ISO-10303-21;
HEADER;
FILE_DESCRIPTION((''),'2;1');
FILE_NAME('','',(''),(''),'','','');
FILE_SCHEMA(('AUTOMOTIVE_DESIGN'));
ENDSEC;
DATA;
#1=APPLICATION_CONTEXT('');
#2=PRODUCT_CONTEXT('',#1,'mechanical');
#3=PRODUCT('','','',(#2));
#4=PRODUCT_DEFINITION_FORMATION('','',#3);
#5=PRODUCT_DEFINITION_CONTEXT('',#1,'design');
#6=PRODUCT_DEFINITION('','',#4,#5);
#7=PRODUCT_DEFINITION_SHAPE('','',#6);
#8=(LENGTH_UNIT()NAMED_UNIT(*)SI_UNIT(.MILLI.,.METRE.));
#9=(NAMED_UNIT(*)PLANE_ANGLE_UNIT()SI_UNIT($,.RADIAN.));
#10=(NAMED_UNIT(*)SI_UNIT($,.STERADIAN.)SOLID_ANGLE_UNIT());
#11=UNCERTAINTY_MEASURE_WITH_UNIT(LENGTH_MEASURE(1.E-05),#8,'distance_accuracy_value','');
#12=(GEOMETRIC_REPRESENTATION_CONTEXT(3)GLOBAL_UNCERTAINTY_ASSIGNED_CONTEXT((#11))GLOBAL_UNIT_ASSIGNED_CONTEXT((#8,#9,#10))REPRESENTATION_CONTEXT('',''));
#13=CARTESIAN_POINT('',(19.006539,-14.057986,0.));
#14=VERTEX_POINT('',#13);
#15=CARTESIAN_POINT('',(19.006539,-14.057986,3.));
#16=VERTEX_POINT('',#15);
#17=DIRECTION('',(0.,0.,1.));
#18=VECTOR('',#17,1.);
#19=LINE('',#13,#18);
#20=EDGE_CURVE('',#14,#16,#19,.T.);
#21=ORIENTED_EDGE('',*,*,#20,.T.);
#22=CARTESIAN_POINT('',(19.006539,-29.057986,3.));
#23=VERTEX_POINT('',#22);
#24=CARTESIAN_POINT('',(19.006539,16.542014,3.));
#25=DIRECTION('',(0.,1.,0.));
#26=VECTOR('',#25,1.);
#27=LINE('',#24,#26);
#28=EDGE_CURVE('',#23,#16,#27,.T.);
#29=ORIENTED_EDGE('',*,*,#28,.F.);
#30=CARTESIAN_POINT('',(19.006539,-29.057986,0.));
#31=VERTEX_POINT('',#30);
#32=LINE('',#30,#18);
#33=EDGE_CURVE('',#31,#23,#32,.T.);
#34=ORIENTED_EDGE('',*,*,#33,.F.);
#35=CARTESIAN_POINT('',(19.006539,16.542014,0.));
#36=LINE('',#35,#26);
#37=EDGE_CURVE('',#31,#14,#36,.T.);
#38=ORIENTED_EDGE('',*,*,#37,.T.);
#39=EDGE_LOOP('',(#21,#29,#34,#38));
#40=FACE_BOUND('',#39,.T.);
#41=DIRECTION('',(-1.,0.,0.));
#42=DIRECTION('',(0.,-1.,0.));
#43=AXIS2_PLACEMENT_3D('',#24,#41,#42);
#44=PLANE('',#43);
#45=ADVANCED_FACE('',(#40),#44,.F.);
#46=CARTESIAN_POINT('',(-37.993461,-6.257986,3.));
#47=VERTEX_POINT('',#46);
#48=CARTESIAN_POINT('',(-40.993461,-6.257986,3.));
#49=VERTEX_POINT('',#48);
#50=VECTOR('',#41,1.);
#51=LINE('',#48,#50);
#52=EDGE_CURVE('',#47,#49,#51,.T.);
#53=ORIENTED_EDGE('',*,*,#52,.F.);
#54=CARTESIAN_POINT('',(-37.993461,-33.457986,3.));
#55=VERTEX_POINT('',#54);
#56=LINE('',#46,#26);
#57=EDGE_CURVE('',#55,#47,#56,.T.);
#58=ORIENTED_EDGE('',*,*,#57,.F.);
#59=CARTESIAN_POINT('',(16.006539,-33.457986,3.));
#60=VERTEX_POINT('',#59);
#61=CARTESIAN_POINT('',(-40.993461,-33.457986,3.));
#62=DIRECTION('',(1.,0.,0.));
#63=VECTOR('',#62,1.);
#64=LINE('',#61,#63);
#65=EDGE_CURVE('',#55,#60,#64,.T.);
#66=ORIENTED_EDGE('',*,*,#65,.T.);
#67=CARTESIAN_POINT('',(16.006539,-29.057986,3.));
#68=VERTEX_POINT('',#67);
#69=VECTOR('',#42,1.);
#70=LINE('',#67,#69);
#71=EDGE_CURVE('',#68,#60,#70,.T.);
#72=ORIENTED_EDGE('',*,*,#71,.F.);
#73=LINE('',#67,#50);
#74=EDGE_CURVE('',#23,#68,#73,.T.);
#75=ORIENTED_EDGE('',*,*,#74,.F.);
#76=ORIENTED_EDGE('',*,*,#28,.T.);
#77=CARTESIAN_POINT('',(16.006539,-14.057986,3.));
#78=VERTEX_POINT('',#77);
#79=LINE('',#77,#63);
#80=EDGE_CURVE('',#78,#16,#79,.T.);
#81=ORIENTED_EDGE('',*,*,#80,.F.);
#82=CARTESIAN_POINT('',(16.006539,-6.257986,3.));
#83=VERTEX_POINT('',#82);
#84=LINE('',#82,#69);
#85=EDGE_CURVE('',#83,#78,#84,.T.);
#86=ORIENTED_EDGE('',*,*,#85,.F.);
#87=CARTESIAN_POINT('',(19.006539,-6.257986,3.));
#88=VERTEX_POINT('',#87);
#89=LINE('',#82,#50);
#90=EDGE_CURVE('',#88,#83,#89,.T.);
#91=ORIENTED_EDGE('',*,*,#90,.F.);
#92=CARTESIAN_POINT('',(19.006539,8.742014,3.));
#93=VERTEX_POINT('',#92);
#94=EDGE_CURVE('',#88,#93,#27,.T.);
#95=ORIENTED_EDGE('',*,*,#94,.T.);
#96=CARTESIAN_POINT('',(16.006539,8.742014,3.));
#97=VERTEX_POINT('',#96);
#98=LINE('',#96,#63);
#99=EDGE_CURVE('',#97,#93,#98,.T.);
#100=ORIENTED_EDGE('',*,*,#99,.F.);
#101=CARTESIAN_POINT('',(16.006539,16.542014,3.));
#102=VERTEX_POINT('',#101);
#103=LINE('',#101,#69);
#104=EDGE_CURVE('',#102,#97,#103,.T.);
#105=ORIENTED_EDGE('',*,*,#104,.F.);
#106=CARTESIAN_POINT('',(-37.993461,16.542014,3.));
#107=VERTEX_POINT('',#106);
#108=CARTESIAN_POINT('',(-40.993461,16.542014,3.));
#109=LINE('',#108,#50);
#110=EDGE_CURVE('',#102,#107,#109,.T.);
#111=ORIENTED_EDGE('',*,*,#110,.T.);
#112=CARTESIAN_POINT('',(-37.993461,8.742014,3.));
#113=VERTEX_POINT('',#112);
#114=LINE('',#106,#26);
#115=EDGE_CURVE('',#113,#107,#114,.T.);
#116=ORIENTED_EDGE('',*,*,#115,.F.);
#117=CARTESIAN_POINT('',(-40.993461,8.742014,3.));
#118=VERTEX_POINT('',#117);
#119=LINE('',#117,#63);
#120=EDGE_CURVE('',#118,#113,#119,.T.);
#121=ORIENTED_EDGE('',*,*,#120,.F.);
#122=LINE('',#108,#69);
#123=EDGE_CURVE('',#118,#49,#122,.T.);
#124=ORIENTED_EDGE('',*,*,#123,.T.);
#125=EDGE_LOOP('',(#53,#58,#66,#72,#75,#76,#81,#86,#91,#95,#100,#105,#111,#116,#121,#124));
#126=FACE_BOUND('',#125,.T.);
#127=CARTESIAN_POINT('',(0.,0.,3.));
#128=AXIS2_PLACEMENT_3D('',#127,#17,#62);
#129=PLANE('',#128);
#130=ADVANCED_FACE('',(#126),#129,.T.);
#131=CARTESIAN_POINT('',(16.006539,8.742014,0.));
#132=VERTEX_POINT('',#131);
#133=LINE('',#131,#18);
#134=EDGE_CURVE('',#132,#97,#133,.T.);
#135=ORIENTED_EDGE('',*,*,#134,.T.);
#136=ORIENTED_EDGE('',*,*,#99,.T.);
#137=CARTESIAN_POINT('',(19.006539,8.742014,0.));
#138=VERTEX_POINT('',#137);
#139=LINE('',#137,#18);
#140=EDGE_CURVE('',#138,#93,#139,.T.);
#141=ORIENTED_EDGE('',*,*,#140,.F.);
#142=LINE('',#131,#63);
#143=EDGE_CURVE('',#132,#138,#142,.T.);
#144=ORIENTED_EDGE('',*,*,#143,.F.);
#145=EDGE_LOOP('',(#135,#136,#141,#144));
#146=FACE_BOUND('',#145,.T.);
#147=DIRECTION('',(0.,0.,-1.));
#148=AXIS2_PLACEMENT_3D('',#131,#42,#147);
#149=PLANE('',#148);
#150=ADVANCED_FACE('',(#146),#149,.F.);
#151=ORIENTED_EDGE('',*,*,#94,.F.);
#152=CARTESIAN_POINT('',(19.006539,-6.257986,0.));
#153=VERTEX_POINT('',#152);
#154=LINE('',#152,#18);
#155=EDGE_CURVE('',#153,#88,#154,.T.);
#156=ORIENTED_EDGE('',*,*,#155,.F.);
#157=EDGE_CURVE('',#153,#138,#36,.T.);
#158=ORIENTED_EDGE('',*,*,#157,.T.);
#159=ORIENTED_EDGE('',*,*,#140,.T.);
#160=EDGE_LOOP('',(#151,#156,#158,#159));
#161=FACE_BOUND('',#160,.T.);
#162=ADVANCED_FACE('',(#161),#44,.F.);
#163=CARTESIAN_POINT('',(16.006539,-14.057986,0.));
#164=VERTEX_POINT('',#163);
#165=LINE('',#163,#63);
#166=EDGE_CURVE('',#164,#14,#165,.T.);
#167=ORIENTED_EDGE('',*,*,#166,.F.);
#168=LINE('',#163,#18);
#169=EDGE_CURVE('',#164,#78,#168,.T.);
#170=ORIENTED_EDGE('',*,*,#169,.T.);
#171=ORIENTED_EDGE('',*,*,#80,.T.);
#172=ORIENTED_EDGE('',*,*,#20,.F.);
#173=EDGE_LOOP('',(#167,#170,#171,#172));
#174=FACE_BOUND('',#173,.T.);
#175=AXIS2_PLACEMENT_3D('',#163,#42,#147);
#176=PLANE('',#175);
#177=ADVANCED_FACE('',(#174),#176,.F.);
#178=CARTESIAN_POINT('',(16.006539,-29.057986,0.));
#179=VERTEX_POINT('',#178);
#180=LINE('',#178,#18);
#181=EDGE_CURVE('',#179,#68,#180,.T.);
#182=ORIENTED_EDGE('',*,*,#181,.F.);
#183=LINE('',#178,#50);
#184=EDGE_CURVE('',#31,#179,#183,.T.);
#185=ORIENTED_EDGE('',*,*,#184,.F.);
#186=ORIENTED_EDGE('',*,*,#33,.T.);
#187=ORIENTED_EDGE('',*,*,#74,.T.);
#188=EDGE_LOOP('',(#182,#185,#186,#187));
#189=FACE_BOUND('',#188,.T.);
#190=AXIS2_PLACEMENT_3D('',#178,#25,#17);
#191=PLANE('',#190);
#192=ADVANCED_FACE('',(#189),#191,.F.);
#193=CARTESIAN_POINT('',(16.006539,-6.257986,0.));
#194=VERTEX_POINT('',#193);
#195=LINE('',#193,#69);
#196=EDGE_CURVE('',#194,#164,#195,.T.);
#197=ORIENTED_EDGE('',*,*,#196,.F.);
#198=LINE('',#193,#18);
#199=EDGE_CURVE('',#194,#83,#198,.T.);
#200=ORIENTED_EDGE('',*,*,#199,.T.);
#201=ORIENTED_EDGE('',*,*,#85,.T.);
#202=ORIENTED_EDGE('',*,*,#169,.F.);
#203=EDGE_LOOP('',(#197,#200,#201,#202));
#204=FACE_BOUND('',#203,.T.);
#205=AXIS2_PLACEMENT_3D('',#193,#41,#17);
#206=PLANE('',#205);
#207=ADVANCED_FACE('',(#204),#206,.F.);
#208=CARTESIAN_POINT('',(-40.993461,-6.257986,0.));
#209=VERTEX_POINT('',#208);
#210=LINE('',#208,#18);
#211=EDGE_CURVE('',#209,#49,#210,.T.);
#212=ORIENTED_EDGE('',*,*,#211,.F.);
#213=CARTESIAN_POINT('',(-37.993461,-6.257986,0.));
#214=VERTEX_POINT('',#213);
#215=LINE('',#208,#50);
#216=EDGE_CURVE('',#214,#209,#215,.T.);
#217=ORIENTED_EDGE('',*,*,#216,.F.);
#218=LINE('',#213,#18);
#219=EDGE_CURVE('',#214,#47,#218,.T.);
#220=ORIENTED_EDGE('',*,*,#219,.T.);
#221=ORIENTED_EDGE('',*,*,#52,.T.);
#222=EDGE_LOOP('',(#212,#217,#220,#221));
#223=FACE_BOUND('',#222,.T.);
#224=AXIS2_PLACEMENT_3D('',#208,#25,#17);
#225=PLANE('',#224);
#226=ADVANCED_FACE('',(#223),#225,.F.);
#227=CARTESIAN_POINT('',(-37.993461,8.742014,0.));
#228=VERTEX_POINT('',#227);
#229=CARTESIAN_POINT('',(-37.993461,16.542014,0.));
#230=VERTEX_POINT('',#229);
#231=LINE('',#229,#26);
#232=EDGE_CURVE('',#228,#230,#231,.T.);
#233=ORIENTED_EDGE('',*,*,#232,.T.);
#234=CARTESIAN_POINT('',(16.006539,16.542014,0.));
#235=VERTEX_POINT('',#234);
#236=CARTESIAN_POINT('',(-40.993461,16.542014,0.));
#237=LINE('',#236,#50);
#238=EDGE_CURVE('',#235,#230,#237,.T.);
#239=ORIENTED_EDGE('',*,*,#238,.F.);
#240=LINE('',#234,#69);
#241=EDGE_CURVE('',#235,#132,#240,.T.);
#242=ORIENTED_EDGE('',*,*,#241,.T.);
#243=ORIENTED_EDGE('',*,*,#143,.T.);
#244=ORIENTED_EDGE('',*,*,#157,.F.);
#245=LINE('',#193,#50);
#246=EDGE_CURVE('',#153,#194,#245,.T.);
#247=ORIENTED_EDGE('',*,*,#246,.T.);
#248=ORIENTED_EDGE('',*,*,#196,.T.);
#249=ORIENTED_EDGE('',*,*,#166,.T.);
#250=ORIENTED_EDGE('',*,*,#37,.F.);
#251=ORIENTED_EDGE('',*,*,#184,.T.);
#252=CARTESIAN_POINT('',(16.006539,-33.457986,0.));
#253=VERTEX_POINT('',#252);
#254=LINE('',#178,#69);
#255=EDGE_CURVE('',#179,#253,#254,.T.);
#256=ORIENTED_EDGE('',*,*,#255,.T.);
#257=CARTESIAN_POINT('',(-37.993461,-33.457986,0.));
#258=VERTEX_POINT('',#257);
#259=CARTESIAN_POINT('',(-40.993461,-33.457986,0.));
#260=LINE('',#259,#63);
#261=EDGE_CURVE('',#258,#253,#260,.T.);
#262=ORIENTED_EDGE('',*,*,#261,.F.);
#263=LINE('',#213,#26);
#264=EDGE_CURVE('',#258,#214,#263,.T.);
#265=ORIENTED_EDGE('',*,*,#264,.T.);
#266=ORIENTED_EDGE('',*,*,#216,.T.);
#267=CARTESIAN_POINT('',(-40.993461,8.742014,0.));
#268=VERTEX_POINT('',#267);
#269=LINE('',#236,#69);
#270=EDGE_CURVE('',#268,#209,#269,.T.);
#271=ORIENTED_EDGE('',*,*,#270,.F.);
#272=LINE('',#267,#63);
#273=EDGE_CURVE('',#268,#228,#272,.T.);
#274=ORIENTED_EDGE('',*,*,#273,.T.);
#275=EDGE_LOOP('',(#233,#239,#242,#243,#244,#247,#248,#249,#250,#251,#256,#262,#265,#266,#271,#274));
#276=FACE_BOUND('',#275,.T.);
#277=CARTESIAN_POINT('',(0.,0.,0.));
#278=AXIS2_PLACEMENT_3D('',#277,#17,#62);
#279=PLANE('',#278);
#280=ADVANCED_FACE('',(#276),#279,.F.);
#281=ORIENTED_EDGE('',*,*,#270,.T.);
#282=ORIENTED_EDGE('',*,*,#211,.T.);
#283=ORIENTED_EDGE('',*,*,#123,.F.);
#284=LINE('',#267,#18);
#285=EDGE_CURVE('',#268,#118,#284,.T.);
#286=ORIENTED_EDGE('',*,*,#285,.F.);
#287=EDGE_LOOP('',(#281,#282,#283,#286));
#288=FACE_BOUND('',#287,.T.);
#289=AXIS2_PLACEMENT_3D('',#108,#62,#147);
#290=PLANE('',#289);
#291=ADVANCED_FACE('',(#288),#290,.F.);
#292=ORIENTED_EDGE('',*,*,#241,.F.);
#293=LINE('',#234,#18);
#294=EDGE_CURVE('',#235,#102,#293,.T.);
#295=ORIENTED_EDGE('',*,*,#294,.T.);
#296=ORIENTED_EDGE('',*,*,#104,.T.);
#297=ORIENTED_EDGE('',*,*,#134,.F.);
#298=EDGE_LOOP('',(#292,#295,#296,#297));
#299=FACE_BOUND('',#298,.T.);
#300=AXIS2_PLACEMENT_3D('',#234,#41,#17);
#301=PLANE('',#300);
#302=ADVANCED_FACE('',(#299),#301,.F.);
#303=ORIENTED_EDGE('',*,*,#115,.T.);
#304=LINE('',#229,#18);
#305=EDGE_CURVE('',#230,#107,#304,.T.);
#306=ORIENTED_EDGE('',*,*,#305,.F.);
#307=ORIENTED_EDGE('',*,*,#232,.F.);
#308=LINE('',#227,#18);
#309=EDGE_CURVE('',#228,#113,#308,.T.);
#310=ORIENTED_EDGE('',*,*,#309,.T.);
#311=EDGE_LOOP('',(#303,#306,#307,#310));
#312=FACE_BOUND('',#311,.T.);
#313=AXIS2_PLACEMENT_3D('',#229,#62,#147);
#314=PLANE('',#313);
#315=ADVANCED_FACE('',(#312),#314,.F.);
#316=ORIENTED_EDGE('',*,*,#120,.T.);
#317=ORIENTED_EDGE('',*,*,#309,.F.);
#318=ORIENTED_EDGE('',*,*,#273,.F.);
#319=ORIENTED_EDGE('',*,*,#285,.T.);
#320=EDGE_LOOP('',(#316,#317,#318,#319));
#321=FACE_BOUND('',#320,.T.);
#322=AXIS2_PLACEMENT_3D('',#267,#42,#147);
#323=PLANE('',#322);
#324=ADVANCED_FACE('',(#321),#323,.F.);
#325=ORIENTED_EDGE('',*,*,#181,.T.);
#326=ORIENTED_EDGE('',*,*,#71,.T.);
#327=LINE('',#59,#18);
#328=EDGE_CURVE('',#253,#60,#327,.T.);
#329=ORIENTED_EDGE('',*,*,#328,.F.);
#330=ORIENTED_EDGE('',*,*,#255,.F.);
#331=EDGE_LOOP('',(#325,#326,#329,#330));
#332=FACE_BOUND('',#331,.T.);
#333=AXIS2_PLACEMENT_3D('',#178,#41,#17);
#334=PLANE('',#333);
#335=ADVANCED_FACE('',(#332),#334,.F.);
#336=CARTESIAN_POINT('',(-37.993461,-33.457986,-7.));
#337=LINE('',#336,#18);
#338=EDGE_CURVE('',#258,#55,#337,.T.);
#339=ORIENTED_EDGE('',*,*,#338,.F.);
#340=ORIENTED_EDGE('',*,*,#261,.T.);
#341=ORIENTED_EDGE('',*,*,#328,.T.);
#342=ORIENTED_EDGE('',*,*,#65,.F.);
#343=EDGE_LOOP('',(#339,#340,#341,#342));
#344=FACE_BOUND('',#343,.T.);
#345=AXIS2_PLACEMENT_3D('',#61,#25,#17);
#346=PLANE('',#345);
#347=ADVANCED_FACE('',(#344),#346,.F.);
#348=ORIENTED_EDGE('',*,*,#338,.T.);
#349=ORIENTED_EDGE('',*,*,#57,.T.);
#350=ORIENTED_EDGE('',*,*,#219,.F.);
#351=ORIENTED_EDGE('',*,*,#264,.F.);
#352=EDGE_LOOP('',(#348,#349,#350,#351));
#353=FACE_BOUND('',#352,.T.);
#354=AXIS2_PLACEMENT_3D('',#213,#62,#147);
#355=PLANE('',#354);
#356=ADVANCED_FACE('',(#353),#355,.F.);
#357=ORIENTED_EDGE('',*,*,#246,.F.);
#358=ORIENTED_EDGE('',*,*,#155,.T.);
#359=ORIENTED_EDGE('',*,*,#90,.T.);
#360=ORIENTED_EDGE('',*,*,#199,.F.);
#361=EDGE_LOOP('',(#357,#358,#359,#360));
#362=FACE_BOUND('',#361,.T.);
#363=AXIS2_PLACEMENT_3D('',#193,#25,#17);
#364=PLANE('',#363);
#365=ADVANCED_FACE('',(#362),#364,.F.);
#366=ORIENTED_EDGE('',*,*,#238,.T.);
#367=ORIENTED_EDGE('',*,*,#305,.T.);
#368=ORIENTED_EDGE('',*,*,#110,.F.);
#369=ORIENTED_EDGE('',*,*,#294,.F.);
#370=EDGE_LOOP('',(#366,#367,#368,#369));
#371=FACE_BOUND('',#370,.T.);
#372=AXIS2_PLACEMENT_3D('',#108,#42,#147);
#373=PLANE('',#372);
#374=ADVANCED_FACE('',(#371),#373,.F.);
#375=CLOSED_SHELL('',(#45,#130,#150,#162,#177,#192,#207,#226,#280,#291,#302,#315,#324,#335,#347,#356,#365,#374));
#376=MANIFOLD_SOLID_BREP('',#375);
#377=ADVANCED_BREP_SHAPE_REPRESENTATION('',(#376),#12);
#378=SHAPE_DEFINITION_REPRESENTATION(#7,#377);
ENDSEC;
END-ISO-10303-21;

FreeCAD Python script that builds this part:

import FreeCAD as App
import Part
import Sketcher
from FreeCAD import Vector
Q = App.Units.Quantity


def add_polygon(sketch, points):
    """Adds a closed chain of lines whose ends are joined by coincident constraints."""
    first, n = sketch.GeometryCount, len(points)
    for a, b in zip(points, points[1:] + points[:1]):
        sketch.addGeometry(Part.LineSegment(App.Vector(*a, 0), App.Vector(*b, 0)), False)
    for i in range(n):
        sketch.addConstraint(Sketcher.Constraint("Coincident", first + i, 2, first + (i + 1) % n, 1))

doc = App.newDocument("Part")
body = doc.addObject("PartDesign::Body", "Body")

# Sketch on XY plane
sketch1 = doc.addObject("Sketcher::SketchObject", "Sketch")
body.addObject(sketch1)
sketch1.AttachmentSupport = (doc.XY_Plane, [""])
sketch1.MapMode = "FlatFace"
add_polygon(sketch1, [(-40.993461, 16.542014), (-40.993461, -33.457986), (19.006539, -33.457986), (19.006539, 16.542014)])  # lines 0-3
sketch1.addConstraint([
    Sketcher.Constraint("Vertical", 0),
    Sketcher.Constraint("Horizontal", 1),
    Sketcher.Constraint("Vertical", 2),
    Sketcher.Constraint("Horizontal", 3),
    Sketcher.Constraint("DistanceX", 1, 1, 1, 2, Q("60 mm")),
    Sketcher.Constraint("DistanceY", 0, 2, 0, 1, Q("50 mm")),
    Sketcher.Constraint("DistanceX", 0, 2, -1, 1, Q("40.993461 mm")),
    Sketcher.Constraint("DistanceY", 0, 2, -1, 1, Q("33.457986 mm")),
])
pad1 = doc.addObject("PartDesign::Pad", "Pad")
body.addObject(pad1)
pad1.Profile = sketch1
pad1.Length = 3

# Sketch on XY plane
sketch2 = doc.addObject("Sketcher::SketchObject", "Sketch001")
body.addObject(sketch2)
sketch2.AttachmentSupport = (doc.XY_Plane, [""])
sketch2.MapMode = "FlatFace"
sketch2.AttachmentOffset = App.Placement(Vector(0, 0, 3), App.Rotation())
add_polygon(sketch2, [(-40.993461, 16.542014), (-40.993461, 8.742014), (-37.993461, 8.742014), (-37.993461, 16.542014)])  # lines 0-3
sketch2.addConstraint([
    Sketcher.Constraint("Vertical", 0),
    Sketcher.Constraint("Horizontal", 1),
    Sketcher.Constraint("Vertical", 2),
    Sketcher.Constraint("Horizontal", 3),
    Sketcher.Constraint("DistanceX", 1, 1, 1, 2, Q("3 mm")),
    Sketcher.Constraint("DistanceY", 0, 2, 0, 1, Q("7.8 mm")),
    Sketcher.Constraint("DistanceX", 0, 2, -1, 1, Q("40.993461 mm")),
    Sketcher.Constraint("DistanceY", -1, 1, 0, 2, Q("8.742014 mm")),
])
pocket1 = doc.addObject("PartDesign::Pocket", "Pocket")
body.addObject(pocket1)
pocket1.Profile = sketch2
pocket1.Type = "ThroughAll"
doc.recompute()

linearpattern = doc.addObject("PartDesign::LinearPattern", "LinearPattern")
body.addObject(linearpattern)
linearpattern.Originals = [pocket1]
linearpattern.Direction = (doc.Y_Axis, [""])
linearpattern.Mode = "offset"
linearpattern.Offset = 22.8
linearpattern.Occurrences = 2
linearpattern.Reversed = True
body.Tip = linearpattern

# Sketch on XY plane
sketch3 = doc.addObject("Sketcher::SketchObject", "Sketch002")
body.addObject(sketch3)
sketch3.AttachmentSupport = (doc.XY_Plane, [""])
sketch3.MapMode = "FlatFace"
sketch3.AttachmentOffset = App.Placement(Vector(0, 0, 3), App.Rotation())
add_polygon(sketch3, [(16.006539, 16.542014), (16.006539, 8.742014), (19.006539, 8.742014), (19.006539, 16.542014)])  # lines 0-3
sketch3.addConstraint([
    Sketcher.Constraint("Vertical", 0),
    Sketcher.Constraint("Horizontal", 1),
    Sketcher.Constraint("Vertical", 2),
    Sketcher.Constraint("Horizontal", 3),
    Sketcher.Constraint("DistanceX", 1, 1, 1, 2, Q("3 mm")),
    Sketcher.Constraint("DistanceY", 0, 2, 0, 1, Q("7.8 mm")),
    Sketcher.Constraint("DistanceX", -1, 1, 0, 2, Q("16.006539 mm")),
    Sketcher.Constraint("DistanceY", -1, 1, 0, 2, Q("8.742014 mm")),
])
pocket2 = doc.addObject("PartDesign::Pocket", "Pocket001")
body.addObject(pocket2)
pocket2.Profile = sketch3
pocket2.Type = "ThroughAll"
doc.recompute()

linearpattern2 = doc.addObject("PartDesign::LinearPattern", "LinearPattern001")
body.addObject(linearpattern2)
linearpattern2.Originals = [pocket2]
linearpattern2.Direction = (doc.Y_Axis, [""])
linearpattern2.Mode = "offset"
linearpattern2.Offset = 22.8
linearpattern2.Occurrences = 4
linearpattern2.Reversed = True
body.Tip = linearpattern2

# Sketch on XY plane
sketch4 = doc.addObject("Sketcher::SketchObject", "Sketch003")
body.addObject(sketch4)
sketch4.AttachmentSupport = (doc.XY_Plane, [""])
sketch4.MapMode = "FlatFace"
sketch4.AttachmentOffset = App.Placement(Vector(0, 0, 3), App.Rotation())
add_polygon(sketch4, [(-40.993461, -14.057986), (-40.993461, -33.457986), (-37.993461, -33.457986), (-37.993461, -14.057986)])  # lines 0-3
sketch4.addConstraint([
    Sketcher.Constraint("Vertical", 0),
    Sketcher.Constraint("Horizontal", 1),
    Sketcher.Constraint("Vertical", 2),
    Sketcher.Constraint("Horizontal", 3),
    Sketcher.Constraint("DistanceX", 1, 1, 1, 2, Q("3 mm")),
    Sketcher.Constraint("DistanceY", 0, 2, 0, 1, Q("19.4 mm")),
    Sketcher.Constraint("DistanceX", 0, 2, -1, 1, Q("40.993461 mm")),
    Sketcher.Constraint("DistanceY", 0, 2, -1, 1, Q("33.457986 mm")),
])
pocket3 = doc.addObject("PartDesign::Pocket", "Pocket002")
body.addObject(pocket3)
pocket3.Profile = sketch4
pocket3.Length = 10

doc.recompute()
